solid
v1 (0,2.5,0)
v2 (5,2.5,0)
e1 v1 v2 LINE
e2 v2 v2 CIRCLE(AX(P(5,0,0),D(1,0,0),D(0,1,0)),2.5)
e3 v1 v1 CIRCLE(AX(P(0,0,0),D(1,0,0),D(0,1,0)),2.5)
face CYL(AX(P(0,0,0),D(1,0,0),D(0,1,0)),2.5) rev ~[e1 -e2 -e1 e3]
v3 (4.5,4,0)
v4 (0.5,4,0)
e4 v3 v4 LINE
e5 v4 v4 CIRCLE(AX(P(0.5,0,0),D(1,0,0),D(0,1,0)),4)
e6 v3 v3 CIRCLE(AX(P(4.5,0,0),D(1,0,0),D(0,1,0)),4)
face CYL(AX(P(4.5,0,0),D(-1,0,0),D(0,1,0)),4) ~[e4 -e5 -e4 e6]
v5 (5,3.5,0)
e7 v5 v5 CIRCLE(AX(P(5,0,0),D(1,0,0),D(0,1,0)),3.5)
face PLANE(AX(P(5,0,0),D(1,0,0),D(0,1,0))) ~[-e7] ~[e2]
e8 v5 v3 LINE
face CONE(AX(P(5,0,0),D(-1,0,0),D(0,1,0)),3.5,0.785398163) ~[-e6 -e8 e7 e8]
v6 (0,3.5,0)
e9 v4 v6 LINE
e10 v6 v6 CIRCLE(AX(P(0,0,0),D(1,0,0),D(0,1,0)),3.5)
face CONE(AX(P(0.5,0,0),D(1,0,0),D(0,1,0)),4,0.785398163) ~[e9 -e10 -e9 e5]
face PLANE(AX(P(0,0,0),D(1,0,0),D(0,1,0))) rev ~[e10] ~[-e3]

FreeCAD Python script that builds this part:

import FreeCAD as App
import Part
import Sketcher

V = App.Vector
Q = App.Units.Quantity


def add_polygon(sketch, points):
    """Adds a closed chain of lines whose ends are joined by coincident constraints."""
    first, n = sketch.GeometryCount, len(points)
    for a, b in zip(points, points[1:] + points[:1]):
        sketch.addGeometry(Part.LineSegment(App.Vector(*a, 0), App.Vector(*b, 0)), False)
    for i in range(n):
        sketch.addConstraint(Sketcher.Constraint("Coincident", first + i, 2, first + (i + 1) % n, 1))

doc = App.newDocument("Part")
body = doc.addObject("PartDesign::Body", "Body")

# Sketch on XY plane
sketch1 = doc.addObject("Sketcher::SketchObject", "Sketch")
body.addObject(sketch1)
sketch1.AttachmentSupport = (doc.XY_Plane, [""])
sketch1.MapMode = "FlatFace"
add_polygon(sketch1, [(0, 3.5), (0, 2.5), (5, 2.5), (5, 3.5), (4.5, 4), (0.5, 4)])  # lines 0-5
sketch1.addConstraint(Sketcher.Constraint("Vertical", 0))
sketch1.addConstraint(Sketcher.Constraint("Horizontal", 1))
sketch1.addConstraint(Sketcher.Constraint("Vertical", 2))
sketch1.addConstraint(Sketcher.Constraint("Horizontal", 4))
sketch1.addConstraint(Sketcher.Constraint("PointOnObject", 0, 2, -2))
sketch1.addConstraint(Sketcher.Constraint("Perpendicular", 3, 5))
sketch1.addConstraint(Sketcher.Constraint("Horizontal", 2, 2, 5, 2))
sketch1.addConstraint(Sketcher.Constraint("Equal", 3, 5))
sketch1.addConstraint(Sketcher.Constraint("DistanceX", 1, 1, 1, 2, Q("5 mm")))
sketch1.addConstraint(Sketcher.Constraint("DistanceX", 4, 2, 4, 1, Q("4 mm")))
sketch1.addConstraint(Sketcher.Constraint("DistanceY", 0, 2, 0, 1, Q("1 mm")))
sketch1.addConstraint(Sketcher.Constraint("DistanceY", -1, 1, 3, 2, Q("4 mm")))
revolution = doc.addObject("PartDesign::Revolution", "Revolution")
body.addObject(revolution)
revolution.Profile = sketch1
revolution.ReferenceAxis = (sketch1, ["H_Axis"])
revolution.Angle = 360

doc.recompute()
